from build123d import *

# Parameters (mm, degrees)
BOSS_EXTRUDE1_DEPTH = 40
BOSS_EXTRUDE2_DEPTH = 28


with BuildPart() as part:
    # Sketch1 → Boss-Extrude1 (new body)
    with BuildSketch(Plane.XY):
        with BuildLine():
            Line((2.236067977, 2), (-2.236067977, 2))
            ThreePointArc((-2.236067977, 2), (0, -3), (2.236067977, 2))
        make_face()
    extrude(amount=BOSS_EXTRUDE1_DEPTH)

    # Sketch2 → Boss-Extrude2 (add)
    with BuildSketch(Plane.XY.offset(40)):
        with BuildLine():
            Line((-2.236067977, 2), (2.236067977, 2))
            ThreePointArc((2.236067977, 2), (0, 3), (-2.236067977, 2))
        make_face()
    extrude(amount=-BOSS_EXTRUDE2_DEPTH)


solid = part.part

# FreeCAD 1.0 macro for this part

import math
import FreeCAD as App
import Part
import Sketcher
Q = App.Units.Quantity

doc = App.newDocument("Part")
params = doc.addObject("Spreadsheet::Sheet", "Params")
for row, (alias, value) in enumerate([
    ("sketch1_radius", "3 mm"),
    ("pad1_length", "40 mm"),
    ("sketch2_radius", "3 mm"),
    ("pad2_length", "28 mm"),
], start=1):
    params.set(f"A{row}", alias)
    params.set(f"B{row}", "=" + value)
    params.setAlias(f"B{row}", alias)

body = doc.addObject("PartDesign::Body", "Body")

# Sketch on XY plane
sketch1 = doc.addObject("Sketcher::SketchObject", "Sketch")
body.addObject(sketch1)
sketch1.AttachmentSupport = (doc.XY_Plane, [""])
sketch1.MapMode = "FlatFace"
sketch1.addGeometry(Part.LineSegment(App.Vector(2.236068, 2, 0), App.Vector(-2.236068, 2, 0)), False)
sketch1.addGeometry(Part.ArcOfCircle(Part.Circle(App.Vector(0, 0, 0), App.Vector(0, 0, 1), 3), math.radians(138.189685), math.radians(401.810315)), False)
sketch1.addConstraint(Sketcher.Constraint("Coincident", 0, 1, 1, 2))
sketch1.addConstraint(Sketcher.Constraint("Coincident", 1, 1, 0, 2))
sketch1.addConstraint(Sketcher.Constraint("Horizontal", 0))
sketch1.addConstraint(Sketcher.Constraint("Coincident", 1, 3, -1, 1))
sketch1.addConstraint(Sketcher.Constraint("Radius", 1, Q("3 mm")))
sketch1.addConstraint(Sketcher.Constraint("DistanceY", -1, 1, 0, 1, Q("2 mm")))
sketch1.setExpression("Constraints[4]", "Params.sketch1_radius")
pad1 = doc.addObject("PartDesign::Pad", "Pad")
body.addObject(pad1)
pad1.Profile = sketch1
pad1.setExpression("Length", "Params.pad1_length")

# Sketch on XY plane
sketch2 = doc.addObject("Sketcher::SketchObject", "Sketch001")
body.addObject(sketch2)
sketch2.AttachmentSupport = (doc.XY_Plane, [""])
sketch2.MapMode = "FlatFace"
sketch2.AttachmentOffset = App.Placement(App.Vector(0, 0, 40), App.Rotation())
sketch2.addGeometry(Part.LineSegment(App.Vector(-2.236068, 2, 0), App.Vector(2.236068, 2, 0)), False)
sketch2.addGeometry(Part.ArcOfCircle(Part.Circle(App.Vector(0, 0, 0), App.Vector(0, 0, 1), 3), math.radians(41.810315), math.radians(138.189685)), False)
sketch2.addConstraint(Sketcher.Constraint("Coincident", 0, 1, 1, 2))
sketch2.addConstraint(Sketcher.Constraint("Coincident", 1, 1, 0, 2))
sketch2.addConstraint(Sketcher.Constraint("Horizontal", 0))
sketch2.addConstraint(Sketcher.Constraint("Coincident", 1, 3, -1, 1))
sketch2.addConstraint(Sketcher.Constraint("Radius", 1, Q("3 mm")))
sketch2.addConstraint(Sketcher.Constraint("DistanceY", -1, 1, 0, 1, Q("2 mm")))
sketch2.setExpression("Constraints[4]", "Params.sketch2_radius")
pad2 = doc.addObject("PartDesign::Pad", "Pad001")
body.addObject(pad2)
pad2.Profile = sketch2
pad2.setExpression("Length", "Params.pad2_length")
pad2.Reversed = True

doc.recompute()
